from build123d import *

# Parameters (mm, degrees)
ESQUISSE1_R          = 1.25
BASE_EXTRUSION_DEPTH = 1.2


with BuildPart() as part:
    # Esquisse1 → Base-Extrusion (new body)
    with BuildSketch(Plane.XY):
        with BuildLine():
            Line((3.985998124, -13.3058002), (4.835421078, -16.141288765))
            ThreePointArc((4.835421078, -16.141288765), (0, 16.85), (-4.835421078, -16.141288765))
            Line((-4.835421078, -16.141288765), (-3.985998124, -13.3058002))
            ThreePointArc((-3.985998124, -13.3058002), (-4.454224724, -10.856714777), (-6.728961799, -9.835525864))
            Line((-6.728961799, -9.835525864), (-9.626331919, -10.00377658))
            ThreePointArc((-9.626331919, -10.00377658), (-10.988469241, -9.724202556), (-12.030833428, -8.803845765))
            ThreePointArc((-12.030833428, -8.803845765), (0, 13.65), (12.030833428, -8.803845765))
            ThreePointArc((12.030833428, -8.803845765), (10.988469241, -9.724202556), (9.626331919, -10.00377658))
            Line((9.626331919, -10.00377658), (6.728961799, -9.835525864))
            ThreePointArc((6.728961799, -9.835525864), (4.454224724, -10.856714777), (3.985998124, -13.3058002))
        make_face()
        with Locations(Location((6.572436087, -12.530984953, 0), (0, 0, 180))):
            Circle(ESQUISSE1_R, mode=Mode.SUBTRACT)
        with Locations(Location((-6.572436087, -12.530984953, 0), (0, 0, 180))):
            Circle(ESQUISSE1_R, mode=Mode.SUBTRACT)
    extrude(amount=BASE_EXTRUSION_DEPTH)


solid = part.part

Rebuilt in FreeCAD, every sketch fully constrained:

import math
import FreeCAD as App
import Part
import Sketcher

doc = App.newDocument("Part")
body = doc.addObject("PartDesign::Body", "Body")

# Sketch on XY plane
sketch1 = body.newObject("Sketcher::SketchObject", "Sketch")
sketch1.AttachmentSupport = (doc.getObject("XY_Plane"), [""])
sketch1.MapMode = "FlatFace"
sketch1.addGeometry([
    Part.LineSegment(App.Vector(4, -13.3, 0), App.Vector(4.8, -16.1, 0)),  # 0
    Part.ArcOfCircle(Part.Circle(App.Vector(0, 0, 0), App.Vector(0, 0, 1), 16.9), math.radians(-73), math.radians(253)),  # 1
    Part.LineSegment(App.Vector(-4.8, -16.1, 0), App.Vector(-4, -13.3, 0)),  # 2
    Part.ArcOfCircle(Part.Circle(App.Vector(-6.6, -12.5, 0), App.Vector(0, 0, 1), 2.7), math.radians(-17), math.radians(93)),  # 3
    Part.LineSegment(App.Vector(-6.7, -9.8, 0), App.Vector(-9.6, -10, 0)),  # 4
    Part.ArcOfCircle(Part.Circle(App.Vector(-9.8, -7.3, 0), App.Vector(0, 0, 1), 2.7), math.radians(-146), math.radians(-87)),  # 5
    Part.ArcOfCircle(Part.Circle(App.Vector(0, -0.8, 0), App.Vector(0, 0, 1), 14.4), math.radians(-34), math.radians(214)),  # 6
    Part.ArcOfCircle(Part.Circle(App.Vector(9.8, -7.3, 0), App.Vector(0, 0, 1), 2.7), math.radians(-93), math.radians(-34)),  # 7
    Part.LineSegment(App.Vector(9.6, -10, 0), App.Vector(6.7, -9.8, 0)),  # 8
    Part.ArcOfCircle(Part.Circle(App.Vector(6.6, -12.5, 0), App.Vector(0, 0, 1), 2.7), math.radians(87), math.radians(197)),  # 9
    Part.Circle(App.Vector(-6.6, -12.5, 0), App.Vector(0, 0, 1), 1.2),  # 10
    Part.Circle(App.Vector(6.6, -12.5, 0), App.Vector(0, 0, 1), 1.2),  # 11
], False)
sketch1.addConstraint([
    Sketcher.Constraint("Coincident", 0, 2, 1, 1),
    Sketcher.Constraint("Coincident", 1, 2, 2, 1),
    Sketcher.Constraint("Tangent", 2, 2, 3, 1),
    Sketcher.Constraint("Tangent", 3, 2, 4, 1),
    Sketcher.Constraint("Tangent", 4, 2, 5, 2),
    Sketcher.Constraint("Tangent", 5, 1, 6, 2),
    Sketcher.Constraint("Tangent", 6, 1, 7, 2),
    Sketcher.Constraint("Tangent", 7, 1, 8, 1),
    Sketcher.Constraint("Tangent", 8, 2, 9, 1),
    Sketcher.Constraint("Tangent", 9, 2, 0, 1),
    Sketcher.Constraint("Coincident", 1, 3, -1, 1),
    Sketcher.Constraint("Coincident", 10, 3, 3, 3),
    Sketcher.Constraint("Coincident", 11, 3, 9, 3),
    Sketcher.Constraint("Equal", 3, 5),
    Sketcher.Constraint("Equal", 5, 7),
    Sketcher.Constraint("Equal", 7, 9),
    Sketcher.Constraint("Equal", 10, 11),
    Sketcher.Constraint("Symmetric", 5, 3, 7, 3, -2),
    Sketcher.Constraint("Symmetric", 3, 3, 9, 3, -2),
    Sketcher.Constraint("Horizontal", 0, 2, 1, 2),
    Sketcher.Constraint("Diameter", 10, 2.5),
    Sketcher.Constraint("Radius", 3, 2.7),
    Sketcher.Constraint("Radius", 1, 16.85),
    Sketcher.Constraint("Radius", 6, 14.45),
    Sketcher.Constraint("DistanceY", 6, 3, -1, 1, 0.8),
    Sketcher.Constraint("DistanceX", 2, 2, -1, 1, 3.985998),
    Sketcher.Constraint("DistanceY", 2, 2, -1, 1, 13.3058),
    Sketcher.Constraint("DistanceX", 5, 1, 4, 2, 2.404502),
    Sketcher.Constraint("Distance", 4, 2.902251),
])
pad1 = body.newObject("PartDesign::Pad", "Pad")
pad1.Profile = sketch1
pad1.Length = 1.2

doc.recompute()
